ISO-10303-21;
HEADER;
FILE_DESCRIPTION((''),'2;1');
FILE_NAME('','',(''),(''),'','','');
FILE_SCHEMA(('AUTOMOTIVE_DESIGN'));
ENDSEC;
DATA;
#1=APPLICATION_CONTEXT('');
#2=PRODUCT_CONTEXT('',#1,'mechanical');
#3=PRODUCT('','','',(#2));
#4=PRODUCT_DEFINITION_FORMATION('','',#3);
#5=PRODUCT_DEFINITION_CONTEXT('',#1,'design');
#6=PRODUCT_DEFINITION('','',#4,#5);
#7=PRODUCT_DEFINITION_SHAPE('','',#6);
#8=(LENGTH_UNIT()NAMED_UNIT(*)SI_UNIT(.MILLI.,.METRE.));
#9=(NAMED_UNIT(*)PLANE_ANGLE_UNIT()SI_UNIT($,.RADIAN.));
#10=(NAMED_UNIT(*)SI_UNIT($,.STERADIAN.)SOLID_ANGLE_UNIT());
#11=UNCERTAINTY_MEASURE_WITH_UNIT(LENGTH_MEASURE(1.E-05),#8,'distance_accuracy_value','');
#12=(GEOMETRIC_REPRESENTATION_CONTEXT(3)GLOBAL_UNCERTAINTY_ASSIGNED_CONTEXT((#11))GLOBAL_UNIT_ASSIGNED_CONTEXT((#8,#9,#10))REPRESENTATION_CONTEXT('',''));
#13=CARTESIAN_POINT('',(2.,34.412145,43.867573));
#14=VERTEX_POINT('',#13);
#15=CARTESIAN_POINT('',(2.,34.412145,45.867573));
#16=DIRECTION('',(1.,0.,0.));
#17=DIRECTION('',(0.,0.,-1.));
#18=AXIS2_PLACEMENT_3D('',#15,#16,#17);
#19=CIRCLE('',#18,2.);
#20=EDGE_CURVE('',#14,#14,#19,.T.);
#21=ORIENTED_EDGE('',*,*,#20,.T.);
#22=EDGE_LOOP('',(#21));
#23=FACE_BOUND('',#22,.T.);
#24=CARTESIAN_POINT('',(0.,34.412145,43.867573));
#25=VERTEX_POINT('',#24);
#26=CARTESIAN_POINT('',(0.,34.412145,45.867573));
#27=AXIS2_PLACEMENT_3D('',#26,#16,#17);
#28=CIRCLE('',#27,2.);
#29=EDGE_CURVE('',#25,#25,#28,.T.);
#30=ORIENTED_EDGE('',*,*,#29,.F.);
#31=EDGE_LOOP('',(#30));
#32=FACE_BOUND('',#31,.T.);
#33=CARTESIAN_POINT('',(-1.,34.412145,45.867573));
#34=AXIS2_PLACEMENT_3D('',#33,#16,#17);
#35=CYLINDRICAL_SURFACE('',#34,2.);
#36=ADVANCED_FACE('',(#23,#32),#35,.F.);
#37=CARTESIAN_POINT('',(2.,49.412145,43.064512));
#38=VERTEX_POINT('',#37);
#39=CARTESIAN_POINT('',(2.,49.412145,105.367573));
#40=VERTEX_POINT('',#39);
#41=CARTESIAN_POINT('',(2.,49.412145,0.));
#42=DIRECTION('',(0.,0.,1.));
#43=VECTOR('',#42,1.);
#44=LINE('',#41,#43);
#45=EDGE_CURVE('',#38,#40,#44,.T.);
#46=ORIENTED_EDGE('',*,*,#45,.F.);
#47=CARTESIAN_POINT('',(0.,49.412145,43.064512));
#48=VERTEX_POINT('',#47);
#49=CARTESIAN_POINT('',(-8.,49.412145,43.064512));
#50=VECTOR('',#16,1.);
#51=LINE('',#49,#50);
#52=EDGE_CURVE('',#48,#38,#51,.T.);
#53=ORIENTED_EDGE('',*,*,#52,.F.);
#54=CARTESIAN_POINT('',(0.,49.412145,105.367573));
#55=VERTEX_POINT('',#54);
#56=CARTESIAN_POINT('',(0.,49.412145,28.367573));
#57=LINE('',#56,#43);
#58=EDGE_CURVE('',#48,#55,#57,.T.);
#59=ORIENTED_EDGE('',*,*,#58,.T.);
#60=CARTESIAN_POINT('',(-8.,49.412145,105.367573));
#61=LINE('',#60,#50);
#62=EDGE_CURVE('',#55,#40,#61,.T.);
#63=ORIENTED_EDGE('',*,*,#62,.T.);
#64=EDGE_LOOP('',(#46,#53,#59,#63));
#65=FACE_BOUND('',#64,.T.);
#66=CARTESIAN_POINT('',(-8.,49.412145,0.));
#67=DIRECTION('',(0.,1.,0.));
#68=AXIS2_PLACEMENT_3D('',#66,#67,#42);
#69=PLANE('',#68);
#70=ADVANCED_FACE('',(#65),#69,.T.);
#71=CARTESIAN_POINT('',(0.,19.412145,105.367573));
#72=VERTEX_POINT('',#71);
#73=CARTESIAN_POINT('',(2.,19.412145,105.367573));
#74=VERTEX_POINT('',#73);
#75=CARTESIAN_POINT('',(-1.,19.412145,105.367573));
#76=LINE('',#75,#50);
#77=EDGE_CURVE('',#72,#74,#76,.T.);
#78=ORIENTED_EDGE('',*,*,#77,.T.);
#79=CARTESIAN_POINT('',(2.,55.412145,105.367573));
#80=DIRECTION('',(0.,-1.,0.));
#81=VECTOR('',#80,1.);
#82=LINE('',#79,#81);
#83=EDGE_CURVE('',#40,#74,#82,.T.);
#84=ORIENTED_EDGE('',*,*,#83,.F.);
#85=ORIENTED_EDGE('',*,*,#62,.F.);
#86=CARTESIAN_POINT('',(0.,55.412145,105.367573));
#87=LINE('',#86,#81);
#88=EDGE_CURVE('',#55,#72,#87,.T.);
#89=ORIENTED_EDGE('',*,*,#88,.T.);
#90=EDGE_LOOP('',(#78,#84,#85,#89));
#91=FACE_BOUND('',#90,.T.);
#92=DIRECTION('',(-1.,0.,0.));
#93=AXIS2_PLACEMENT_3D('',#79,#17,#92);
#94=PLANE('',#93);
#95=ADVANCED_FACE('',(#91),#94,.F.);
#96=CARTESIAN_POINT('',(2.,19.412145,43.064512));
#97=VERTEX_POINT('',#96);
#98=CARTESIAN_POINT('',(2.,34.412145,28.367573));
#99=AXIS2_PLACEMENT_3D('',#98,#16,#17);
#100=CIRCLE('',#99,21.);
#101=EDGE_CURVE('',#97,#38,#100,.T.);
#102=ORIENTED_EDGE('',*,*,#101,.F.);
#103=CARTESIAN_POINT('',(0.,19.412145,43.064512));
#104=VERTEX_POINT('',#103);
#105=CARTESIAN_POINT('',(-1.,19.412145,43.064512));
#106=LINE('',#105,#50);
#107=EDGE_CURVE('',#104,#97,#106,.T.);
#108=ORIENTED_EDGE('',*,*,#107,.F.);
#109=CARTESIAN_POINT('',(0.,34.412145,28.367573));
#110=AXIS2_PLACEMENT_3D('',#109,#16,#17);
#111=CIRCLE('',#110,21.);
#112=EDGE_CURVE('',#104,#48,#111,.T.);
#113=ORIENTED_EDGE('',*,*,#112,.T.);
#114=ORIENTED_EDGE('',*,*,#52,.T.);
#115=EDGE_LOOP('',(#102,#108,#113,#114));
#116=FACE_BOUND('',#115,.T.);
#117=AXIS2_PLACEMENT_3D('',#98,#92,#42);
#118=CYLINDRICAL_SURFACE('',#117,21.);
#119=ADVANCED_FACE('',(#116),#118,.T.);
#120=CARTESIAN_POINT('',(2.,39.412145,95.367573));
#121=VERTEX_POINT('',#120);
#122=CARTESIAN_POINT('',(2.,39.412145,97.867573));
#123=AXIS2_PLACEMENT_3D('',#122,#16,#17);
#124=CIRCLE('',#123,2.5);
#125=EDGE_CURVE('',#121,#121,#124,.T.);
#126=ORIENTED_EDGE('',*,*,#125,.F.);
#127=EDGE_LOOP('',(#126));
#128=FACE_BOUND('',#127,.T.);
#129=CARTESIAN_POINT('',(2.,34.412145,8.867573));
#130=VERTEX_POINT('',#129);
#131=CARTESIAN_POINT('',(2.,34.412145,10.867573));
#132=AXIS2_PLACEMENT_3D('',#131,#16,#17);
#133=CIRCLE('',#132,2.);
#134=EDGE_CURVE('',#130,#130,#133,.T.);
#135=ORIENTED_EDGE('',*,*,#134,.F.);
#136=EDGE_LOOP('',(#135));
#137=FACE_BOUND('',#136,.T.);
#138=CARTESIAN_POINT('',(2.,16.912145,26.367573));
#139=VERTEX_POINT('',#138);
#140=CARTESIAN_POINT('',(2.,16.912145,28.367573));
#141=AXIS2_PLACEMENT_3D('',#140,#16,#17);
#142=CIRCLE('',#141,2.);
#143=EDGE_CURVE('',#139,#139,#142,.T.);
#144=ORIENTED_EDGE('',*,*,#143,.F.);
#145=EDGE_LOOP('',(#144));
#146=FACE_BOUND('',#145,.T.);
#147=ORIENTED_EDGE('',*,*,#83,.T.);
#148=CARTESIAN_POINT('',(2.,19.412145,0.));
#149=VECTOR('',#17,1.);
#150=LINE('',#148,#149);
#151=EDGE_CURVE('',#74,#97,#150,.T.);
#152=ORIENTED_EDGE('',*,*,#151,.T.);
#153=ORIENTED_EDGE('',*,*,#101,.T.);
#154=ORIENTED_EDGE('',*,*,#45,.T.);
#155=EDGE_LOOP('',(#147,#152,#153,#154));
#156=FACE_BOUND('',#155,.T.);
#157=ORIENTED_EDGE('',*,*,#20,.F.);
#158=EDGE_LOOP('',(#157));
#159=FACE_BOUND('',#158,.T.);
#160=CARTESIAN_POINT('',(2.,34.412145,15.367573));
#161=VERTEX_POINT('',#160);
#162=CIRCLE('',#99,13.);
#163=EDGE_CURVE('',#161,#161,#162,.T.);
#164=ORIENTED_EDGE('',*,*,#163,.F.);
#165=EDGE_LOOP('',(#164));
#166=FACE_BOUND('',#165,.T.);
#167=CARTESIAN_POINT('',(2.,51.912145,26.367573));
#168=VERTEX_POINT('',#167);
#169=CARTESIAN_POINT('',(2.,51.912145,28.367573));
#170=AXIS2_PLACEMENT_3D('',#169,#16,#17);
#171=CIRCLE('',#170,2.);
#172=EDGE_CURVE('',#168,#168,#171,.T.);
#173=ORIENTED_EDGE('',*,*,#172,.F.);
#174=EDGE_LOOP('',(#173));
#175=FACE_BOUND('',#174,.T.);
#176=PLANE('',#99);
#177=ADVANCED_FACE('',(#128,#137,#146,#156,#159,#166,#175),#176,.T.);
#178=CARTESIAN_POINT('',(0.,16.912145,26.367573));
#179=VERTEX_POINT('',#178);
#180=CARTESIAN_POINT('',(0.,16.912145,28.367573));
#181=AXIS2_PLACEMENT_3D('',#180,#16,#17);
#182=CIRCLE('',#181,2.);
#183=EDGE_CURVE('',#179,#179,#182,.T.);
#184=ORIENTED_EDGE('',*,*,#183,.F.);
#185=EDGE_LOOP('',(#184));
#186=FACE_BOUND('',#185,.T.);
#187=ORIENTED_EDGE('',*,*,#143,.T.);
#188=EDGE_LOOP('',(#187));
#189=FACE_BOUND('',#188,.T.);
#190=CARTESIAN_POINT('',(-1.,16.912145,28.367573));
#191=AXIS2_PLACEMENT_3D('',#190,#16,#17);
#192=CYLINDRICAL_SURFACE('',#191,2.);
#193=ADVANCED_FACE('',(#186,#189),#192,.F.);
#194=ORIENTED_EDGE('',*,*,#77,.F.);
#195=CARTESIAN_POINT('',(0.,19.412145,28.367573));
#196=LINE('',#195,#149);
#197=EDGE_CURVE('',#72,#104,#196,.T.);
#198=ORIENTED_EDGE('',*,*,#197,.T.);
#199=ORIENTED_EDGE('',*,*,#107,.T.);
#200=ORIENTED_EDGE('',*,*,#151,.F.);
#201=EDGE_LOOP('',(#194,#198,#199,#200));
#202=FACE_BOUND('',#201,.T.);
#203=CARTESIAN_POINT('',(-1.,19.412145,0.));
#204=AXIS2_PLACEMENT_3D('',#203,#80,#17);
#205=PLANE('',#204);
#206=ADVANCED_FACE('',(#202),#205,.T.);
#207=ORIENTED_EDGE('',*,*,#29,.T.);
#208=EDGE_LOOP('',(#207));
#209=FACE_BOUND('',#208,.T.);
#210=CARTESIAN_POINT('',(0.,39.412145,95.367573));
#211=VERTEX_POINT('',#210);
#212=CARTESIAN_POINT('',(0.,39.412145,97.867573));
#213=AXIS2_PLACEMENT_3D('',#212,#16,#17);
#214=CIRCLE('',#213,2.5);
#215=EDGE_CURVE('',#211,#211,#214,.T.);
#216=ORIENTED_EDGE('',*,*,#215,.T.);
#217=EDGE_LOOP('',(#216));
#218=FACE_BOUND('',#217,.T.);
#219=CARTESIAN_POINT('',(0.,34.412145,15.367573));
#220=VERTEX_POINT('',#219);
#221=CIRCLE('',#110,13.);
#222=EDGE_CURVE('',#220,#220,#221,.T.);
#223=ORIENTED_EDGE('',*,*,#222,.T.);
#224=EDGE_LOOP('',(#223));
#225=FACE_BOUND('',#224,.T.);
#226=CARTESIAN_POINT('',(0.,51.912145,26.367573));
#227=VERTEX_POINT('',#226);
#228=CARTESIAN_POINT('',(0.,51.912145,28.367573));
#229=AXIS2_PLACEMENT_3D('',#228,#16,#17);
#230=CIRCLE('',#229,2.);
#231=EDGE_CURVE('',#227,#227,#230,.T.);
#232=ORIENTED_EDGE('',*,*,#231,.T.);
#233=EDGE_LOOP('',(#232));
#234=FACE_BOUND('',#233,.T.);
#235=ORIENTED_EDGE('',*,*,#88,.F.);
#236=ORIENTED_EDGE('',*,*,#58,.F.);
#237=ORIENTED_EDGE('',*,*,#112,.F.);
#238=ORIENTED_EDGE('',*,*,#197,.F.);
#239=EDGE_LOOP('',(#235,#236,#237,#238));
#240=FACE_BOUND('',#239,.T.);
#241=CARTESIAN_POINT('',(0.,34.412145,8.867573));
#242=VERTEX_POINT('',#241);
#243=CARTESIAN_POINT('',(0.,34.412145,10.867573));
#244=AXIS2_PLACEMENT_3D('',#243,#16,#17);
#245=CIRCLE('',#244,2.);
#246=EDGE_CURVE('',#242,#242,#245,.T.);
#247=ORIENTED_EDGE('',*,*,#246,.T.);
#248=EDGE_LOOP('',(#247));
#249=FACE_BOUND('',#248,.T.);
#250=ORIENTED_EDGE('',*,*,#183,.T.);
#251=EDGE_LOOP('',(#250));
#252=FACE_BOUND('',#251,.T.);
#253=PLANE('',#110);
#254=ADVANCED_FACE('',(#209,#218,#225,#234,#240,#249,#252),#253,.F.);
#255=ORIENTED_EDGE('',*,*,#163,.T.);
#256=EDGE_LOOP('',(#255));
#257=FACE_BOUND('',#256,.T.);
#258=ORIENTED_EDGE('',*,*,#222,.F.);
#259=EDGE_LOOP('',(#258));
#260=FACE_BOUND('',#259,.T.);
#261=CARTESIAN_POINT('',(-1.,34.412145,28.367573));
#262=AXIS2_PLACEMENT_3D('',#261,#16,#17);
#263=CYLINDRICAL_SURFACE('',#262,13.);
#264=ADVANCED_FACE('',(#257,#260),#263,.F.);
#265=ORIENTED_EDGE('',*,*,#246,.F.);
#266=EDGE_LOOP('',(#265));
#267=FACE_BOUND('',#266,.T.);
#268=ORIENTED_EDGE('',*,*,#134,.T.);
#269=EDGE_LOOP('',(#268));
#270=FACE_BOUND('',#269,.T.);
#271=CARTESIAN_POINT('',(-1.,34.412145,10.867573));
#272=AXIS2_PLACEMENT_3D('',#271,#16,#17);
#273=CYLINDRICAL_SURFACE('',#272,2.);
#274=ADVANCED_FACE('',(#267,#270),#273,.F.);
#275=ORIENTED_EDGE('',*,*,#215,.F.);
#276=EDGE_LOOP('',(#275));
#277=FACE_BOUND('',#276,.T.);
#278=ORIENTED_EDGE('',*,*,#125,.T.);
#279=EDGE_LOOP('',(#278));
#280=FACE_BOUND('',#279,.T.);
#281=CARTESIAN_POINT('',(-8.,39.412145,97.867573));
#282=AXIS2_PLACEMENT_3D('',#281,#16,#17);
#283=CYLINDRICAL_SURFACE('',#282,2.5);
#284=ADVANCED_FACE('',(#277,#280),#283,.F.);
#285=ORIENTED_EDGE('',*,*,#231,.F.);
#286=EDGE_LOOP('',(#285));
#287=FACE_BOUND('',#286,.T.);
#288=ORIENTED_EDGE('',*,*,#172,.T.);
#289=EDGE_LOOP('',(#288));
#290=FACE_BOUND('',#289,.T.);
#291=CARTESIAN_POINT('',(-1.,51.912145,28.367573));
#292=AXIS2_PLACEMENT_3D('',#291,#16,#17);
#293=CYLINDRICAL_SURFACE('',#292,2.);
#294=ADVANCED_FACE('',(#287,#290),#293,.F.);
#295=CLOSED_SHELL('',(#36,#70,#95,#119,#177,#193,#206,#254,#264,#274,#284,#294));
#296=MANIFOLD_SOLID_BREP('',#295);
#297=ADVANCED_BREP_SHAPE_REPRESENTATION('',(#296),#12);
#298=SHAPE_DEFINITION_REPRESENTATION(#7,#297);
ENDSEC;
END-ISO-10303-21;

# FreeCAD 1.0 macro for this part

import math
import FreeCAD as App
import Part
import Sketcher
Q = App.Units.Quantity

doc = App.newDocument("Part")
params = doc.addObject("Spreadsheet::Sheet", "Params")
for row, (alias, value) in enumerate([
    ("sketch1_radius", "21 mm"),
    ("sketch1_height", "77 mm"),
    ("pad1_length", "2 mm"),
    ("sketch2_diameter", "4 mm"),
    ("sketch2_diameter2", "26 mm"),
    ("sketch2_radius", "21 mm"),
    ("sketch2_width", "6 mm"),
    ("pocket1_length", "3 mm"),
    ("sketch3_radius", "21 mm"),
    ("sketch3_width", "6 mm"),
    ("sketch3_height", "77 mm"),
    ("pocket2_length", "10 mm"),
    ("sketch4_diameter", "5 mm"),
    ("pocket3_length", "10 mm"),
], start=1):
    params.set(f"A{row}", alias)
    params.set(f"B{row}", "=" + value)
    params.setAlias(f"B{row}", alias)

body = doc.addObject("PartDesign::Body", "Body")

# Sketch on YZ plane
sketch1 = body.newObject("Sketcher::SketchObject", "Sketch")
sketch1.AttachmentSupport = (doc.getObject("YZ_Plane"), [""])
sketch1.MapMode = "FlatFace"
sketch1.addGeometry(Part.LineSegment(App.Vector(55, 28, 0), App.Vector(55, 105, 0)), False)
sketch1.addGeometry(Part.LineSegment(App.Vector(55, 105, 0), App.Vector(13, 105, 0)), False)
sketch1.addGeometry(Part.LineSegment(App.Vector(13, 105, 0), App.Vector(13, 28, 0)), False)
sketch1.addGeometry(Part.ArcOfCircle(Part.Circle(App.Vector(34, 28, 0), App.Vector(0, 0, 1), 21), math.radians(180), math.radians(360)), False)
sketch1.addConstraint(Sketcher.Constraint("Coincident", 0, 2, 1, 1))
sketch1.addConstraint(Sketcher.Constraint("Coincident", 1, 2, 2, 1))
sketch1.addConstraint(Sketcher.Constraint("Tangent", 2, 2, 3, 1))
sketch1.addConstraint(Sketcher.Constraint("Tangent", 3, 2, 0, 1))
sketch1.addConstraint(Sketcher.Constraint("Vertical", 0))
sketch1.addConstraint(Sketcher.Constraint("Horizontal", 1))
sketch1.addConstraint(Sketcher.Constraint("Vertical", 2))
sketch1.addConstraint(Sketcher.Constraint("Radius", 3, Q("21 mm")))
sketch1.addConstraint(Sketcher.Constraint("DistanceY", 0, 1, 0, 2, Q("77 mm")))
sketch1.addConstraint(Sketcher.Constraint("DistanceX", -1, 1, 3, 3, Q("34.412145 mm")))
sketch1.addConstraint(Sketcher.Constraint("DistanceY", -1, 1, 3, 3, Q("28.367573 mm")))
sketch1.setExpression("Constraints[7]", "Params.sketch1_radius")
sketch1.setExpression("Constraints[8]", "Params.sketch1_height")
pad1 = body.newObject("PartDesign::Pad", "Pad")
pad1.Profile = sketch1
pad1.setExpression("Length", "Params.pad1_length")

# Sketch on YZ plane
sketch2 = body.newObject("Sketcher::SketchObject", "Sketch001")
sketch2.AttachmentSupport = (doc.getObject("YZ_Plane"), [""])
sketch2.MapMode = "FlatFace"
sketch2.AttachmentOffset = App.Placement(App.Vector(0, 0, -1), App.Rotation())
sketch2.addGeometry(Part.LineSegment(App.Vector(19.4, 43.1, 0), App.Vector(19.4, 108.8, 0)), False)
sketch2.addGeometry(Part.LineSegment(App.Vector(19.4, 108.8, 0), App.Vector(13.4, 108.8, 0)), False)
sketch2.addGeometry(Part.LineSegment(App.Vector(13.4, 108.8, 0), App.Vector(13.4, 28.4, 0)), False)
sketch2.addGeometry(Part.ArcOfCircle(Part.Circle(App.Vector(34.4, 28.4, 0), App.Vector(0, 0, 1), 21), math.radians(136), math.radians(180)), False)
sketch2.addGeometry(Part.Circle(App.Vector(51.9, 28.4, 0), App.Vector(0, 0, 1), 2), False)
sketch2.addGeometry(Part.Circle(App.Vector(16.9, 28.4, 0), App.Vector(0, 0, 1), 2), False)
sketch2.addGeometry(Part.Circle(App.Vector(34.4, 45.9, 0), App.Vector(0, 0, 1), 2), False)
sketch2.addGeometry(Part.Circle(App.Vector(34.4, 10.9, 0), App.Vector(0, 0, 1), 2), False)
sketch2.addGeometry(Part.Circle(App.Vector(34.4, 28.4, 0), App.Vector(0, 0, 1), 13), False)
sketch2.addConstraint(Sketcher.Constraint("Coincident", 0, 2, 1, 1))
sketch2.addConstraint(Sketcher.Constraint("Coincident", 1, 2, 2, 1))
sketch2.addConstraint(Sketcher.Constraint("Tangent", 2, 2, 3, 2))
sketch2.addConstraint(Sketcher.Constraint("Coincident", 3, 1, 0, 1))
sketch2.addConstraint(Sketcher.Constraint("Vertical", 0))
sketch2.addConstraint(Sketcher.Constraint("Horizontal", 1))
sketch2.addConstraint(Sketcher.Constraint("Vertical", 2))
sketch2.addConstraint(Sketcher.Constraint("Coincident", 8, 3, 3, 3))
sketch2.addConstraint(Sketcher.Constraint("Equal", 4, 5))
sketch2.addConstraint(Sketcher.Constraint("Equal", 5, 6))
sketch2.addConstraint(Sketcher.Constraint("Equal", 6, 7))
sketch2.addConstraint(Sketcher.Constraint("Horizontal", 3, 3, 4, 3))
sketch2.addConstraint(Sketcher.Constraint("Horizontal", 4, 3, 5, 3))
sketch2.addConstraint(Sketcher.Constraint("Vertical", 3, 3, 6, 3))
sketch2.addConstraint(Sketcher.Constraint("Vertical", 6, 3, 7, 3))
sketch2.addConstraint(Sketcher.Constraint("Diameter", 4, Q("4 mm")))
sketch2.addConstraint(Sketcher.Constraint("Diameter", 8, Q("26 mm")))
sketch2.addConstraint(Sketcher.Constraint("Radius", 3, Q("21 mm")))
sketch2.addConstraint(Sketcher.Constraint("DistanceX", 1, 2, 1, 1, Q("6 mm")))
sketch2.addConstraint(Sketcher.Constraint("DistanceX", 5, 3, 4, 3, Q("35 mm")))
sketch2.addConstraint(Sketcher.Constraint("DistanceY", 7, 3, 6, 3, Q("35 mm")))
sketch2.addConstraint(Sketcher.Constraint("DistanceX", 3, 3, 4, 3, Q("17.5 mm")))
sketch2.addConstraint(Sketcher.Constraint("DistanceY", 3, 3, 6, 3, Q("17.5 mm")))
sketch2.addConstraint(Sketcher.Constraint("DistanceY", 2, 2, 2, 1, Q("80.397831 mm")))
sketch2.addConstraint(Sketcher.Constraint("DistanceY", -1, 1, 3, 1, Q("43.064512 mm")))
sketch2.addConstraint(Sketcher.Constraint("DistanceX", -1, 1, 3, 3, Q("34.412145 mm")))
sketch2.setExpression("Constraints[15]", "Params.sketch2_diameter")
sketch2.setExpression("Constraints[16]", "Params.sketch2_diameter2")
sketch2.setExpression("Constraints[17]", "Params.sketch2_radius")
sketch2.setExpression("Constraints[18]", "Params.sketch2_width")
pocket1 = body.newObject("PartDesign::Pocket", "Pocket")
pocket1.Profile = sketch2
pocket1.setExpression("Length", "Params.pocket1_length")
pocket1.Reversed = True

# Sketch on YZ plane
sketch3 = body.newObject("Sketcher::SketchObject", "Sketch002")
sketch3.AttachmentSupport = (doc.getObject("YZ_Plane"), [""])
sketch3.MapMode = "FlatFace"
sketch3.AttachmentOffset = App.Placement(App.Vector(0, 0, -8), App.Rotation())
sketch3.addGeometry(Part.LineSegment(App.Vector(55, 105, 0), App.Vector(49, 105, 0)), False)
sketch3.addGeometry(Part.LineSegment(App.Vector(49, 105, 0), App.Vector(49, 43, 0)), False)
sketch3.addGeometry(Part.ArcOfCircle(Part.Circle(App.Vector(34, 28, 0), App.Vector(0, 0, 1), 21), math.radians(0), math.radians(44)), False)
sketch3.addGeometry(Part.LineSegment(App.Vector(55, 28, 0), App.Vector(55, 105, 0)), False)
sketch3.addConstraint(Sketcher.Constraint("Coincident", 0, 2, 1, 1))
sketch3.addConstraint(Sketcher.Constraint("Coincident", 1, 2, 2, 2))
sketch3.addConstraint(Sketcher.Constraint("Tangent", 2, 1, 3, 1))
sketch3.addConstraint(Sketcher.Constraint("Coincident", 3, 2, 0, 1))
sketch3.addConstraint(Sketcher.Constraint("Horizontal", 0))
sketch3.addConstraint(Sketcher.Constraint("Vertical", 1))
sketch3.addConstraint(Sketcher.Constraint("Vertical", 3))
sketch3.addConstraint(Sketcher.Constraint("Radius", 2, Q("21 mm")))
sketch3.addConstraint(Sketcher.Constraint("DistanceX", 0, 2, 0, 1, Q("6 mm")))
sketch3.addConstraint(Sketcher.Constraint("DistanceY", 3, 1, 3, 2, Q("77 mm")))
sketch3.addConstraint(Sketcher.Constraint("DistanceY", -1, 1, 1, 2, Q("43.064512 mm")))
sketch3.addConstraint(Sketcher.Constraint("DistanceX", -1, 1, 2, 3, Q("34.412145 mm")))
sketch3.setExpression("Constraints[7]", "Params.sketch3_radius")
sketch3.setExpression("Constraints[8]", "Params.sketch3_width")
sketch3.setExpression("Constraints[9]", "Params.sketch3_height")
pocket2 = body.newObject("PartDesign::Pocket", "Pocket001")
pocket2.Profile = sketch3
pocket2.setExpression("Length", "Params.pocket2_length")
pocket2.Reversed = True

# Sketch on YZ plane
sketch4 = body.newObject("Sketcher::SketchObject", "Sketch003")
sketch4.AttachmentSupport = (doc.getObject("YZ_Plane"), [""])
sketch4.MapMode = "FlatFace"
sketch4.AttachmentOffset = App.Placement(App.Vector(0, 0, 2), App.Rotation())
sketch4.addGeometry(Part.Circle(App.Vector(39.4, 97.9, 0), App.Vector(0, 0, 1), 2.5), False)
sketch4.addConstraint(Sketcher.Constraint("Diameter", 0, Q("5 mm")))
sketch4.addConstraint(Sketcher.Constraint("DistanceX", -1, 1, 0, 3, Q("39.412145 mm")))
sketch4.addConstraint(Sketcher.Constraint("DistanceY", -1, 1, 0, 3, Q("97.867573 mm")))
sketch4.setExpression("Constraints[0]", "Params.sketch4_diameter")
pocket3 = body.newObject("PartDesign::Pocket", "Pocket002")
pocket3.Profile = sketch4
pocket3.setExpression("Length", "Params.pocket3_length")

doc.recompute()
